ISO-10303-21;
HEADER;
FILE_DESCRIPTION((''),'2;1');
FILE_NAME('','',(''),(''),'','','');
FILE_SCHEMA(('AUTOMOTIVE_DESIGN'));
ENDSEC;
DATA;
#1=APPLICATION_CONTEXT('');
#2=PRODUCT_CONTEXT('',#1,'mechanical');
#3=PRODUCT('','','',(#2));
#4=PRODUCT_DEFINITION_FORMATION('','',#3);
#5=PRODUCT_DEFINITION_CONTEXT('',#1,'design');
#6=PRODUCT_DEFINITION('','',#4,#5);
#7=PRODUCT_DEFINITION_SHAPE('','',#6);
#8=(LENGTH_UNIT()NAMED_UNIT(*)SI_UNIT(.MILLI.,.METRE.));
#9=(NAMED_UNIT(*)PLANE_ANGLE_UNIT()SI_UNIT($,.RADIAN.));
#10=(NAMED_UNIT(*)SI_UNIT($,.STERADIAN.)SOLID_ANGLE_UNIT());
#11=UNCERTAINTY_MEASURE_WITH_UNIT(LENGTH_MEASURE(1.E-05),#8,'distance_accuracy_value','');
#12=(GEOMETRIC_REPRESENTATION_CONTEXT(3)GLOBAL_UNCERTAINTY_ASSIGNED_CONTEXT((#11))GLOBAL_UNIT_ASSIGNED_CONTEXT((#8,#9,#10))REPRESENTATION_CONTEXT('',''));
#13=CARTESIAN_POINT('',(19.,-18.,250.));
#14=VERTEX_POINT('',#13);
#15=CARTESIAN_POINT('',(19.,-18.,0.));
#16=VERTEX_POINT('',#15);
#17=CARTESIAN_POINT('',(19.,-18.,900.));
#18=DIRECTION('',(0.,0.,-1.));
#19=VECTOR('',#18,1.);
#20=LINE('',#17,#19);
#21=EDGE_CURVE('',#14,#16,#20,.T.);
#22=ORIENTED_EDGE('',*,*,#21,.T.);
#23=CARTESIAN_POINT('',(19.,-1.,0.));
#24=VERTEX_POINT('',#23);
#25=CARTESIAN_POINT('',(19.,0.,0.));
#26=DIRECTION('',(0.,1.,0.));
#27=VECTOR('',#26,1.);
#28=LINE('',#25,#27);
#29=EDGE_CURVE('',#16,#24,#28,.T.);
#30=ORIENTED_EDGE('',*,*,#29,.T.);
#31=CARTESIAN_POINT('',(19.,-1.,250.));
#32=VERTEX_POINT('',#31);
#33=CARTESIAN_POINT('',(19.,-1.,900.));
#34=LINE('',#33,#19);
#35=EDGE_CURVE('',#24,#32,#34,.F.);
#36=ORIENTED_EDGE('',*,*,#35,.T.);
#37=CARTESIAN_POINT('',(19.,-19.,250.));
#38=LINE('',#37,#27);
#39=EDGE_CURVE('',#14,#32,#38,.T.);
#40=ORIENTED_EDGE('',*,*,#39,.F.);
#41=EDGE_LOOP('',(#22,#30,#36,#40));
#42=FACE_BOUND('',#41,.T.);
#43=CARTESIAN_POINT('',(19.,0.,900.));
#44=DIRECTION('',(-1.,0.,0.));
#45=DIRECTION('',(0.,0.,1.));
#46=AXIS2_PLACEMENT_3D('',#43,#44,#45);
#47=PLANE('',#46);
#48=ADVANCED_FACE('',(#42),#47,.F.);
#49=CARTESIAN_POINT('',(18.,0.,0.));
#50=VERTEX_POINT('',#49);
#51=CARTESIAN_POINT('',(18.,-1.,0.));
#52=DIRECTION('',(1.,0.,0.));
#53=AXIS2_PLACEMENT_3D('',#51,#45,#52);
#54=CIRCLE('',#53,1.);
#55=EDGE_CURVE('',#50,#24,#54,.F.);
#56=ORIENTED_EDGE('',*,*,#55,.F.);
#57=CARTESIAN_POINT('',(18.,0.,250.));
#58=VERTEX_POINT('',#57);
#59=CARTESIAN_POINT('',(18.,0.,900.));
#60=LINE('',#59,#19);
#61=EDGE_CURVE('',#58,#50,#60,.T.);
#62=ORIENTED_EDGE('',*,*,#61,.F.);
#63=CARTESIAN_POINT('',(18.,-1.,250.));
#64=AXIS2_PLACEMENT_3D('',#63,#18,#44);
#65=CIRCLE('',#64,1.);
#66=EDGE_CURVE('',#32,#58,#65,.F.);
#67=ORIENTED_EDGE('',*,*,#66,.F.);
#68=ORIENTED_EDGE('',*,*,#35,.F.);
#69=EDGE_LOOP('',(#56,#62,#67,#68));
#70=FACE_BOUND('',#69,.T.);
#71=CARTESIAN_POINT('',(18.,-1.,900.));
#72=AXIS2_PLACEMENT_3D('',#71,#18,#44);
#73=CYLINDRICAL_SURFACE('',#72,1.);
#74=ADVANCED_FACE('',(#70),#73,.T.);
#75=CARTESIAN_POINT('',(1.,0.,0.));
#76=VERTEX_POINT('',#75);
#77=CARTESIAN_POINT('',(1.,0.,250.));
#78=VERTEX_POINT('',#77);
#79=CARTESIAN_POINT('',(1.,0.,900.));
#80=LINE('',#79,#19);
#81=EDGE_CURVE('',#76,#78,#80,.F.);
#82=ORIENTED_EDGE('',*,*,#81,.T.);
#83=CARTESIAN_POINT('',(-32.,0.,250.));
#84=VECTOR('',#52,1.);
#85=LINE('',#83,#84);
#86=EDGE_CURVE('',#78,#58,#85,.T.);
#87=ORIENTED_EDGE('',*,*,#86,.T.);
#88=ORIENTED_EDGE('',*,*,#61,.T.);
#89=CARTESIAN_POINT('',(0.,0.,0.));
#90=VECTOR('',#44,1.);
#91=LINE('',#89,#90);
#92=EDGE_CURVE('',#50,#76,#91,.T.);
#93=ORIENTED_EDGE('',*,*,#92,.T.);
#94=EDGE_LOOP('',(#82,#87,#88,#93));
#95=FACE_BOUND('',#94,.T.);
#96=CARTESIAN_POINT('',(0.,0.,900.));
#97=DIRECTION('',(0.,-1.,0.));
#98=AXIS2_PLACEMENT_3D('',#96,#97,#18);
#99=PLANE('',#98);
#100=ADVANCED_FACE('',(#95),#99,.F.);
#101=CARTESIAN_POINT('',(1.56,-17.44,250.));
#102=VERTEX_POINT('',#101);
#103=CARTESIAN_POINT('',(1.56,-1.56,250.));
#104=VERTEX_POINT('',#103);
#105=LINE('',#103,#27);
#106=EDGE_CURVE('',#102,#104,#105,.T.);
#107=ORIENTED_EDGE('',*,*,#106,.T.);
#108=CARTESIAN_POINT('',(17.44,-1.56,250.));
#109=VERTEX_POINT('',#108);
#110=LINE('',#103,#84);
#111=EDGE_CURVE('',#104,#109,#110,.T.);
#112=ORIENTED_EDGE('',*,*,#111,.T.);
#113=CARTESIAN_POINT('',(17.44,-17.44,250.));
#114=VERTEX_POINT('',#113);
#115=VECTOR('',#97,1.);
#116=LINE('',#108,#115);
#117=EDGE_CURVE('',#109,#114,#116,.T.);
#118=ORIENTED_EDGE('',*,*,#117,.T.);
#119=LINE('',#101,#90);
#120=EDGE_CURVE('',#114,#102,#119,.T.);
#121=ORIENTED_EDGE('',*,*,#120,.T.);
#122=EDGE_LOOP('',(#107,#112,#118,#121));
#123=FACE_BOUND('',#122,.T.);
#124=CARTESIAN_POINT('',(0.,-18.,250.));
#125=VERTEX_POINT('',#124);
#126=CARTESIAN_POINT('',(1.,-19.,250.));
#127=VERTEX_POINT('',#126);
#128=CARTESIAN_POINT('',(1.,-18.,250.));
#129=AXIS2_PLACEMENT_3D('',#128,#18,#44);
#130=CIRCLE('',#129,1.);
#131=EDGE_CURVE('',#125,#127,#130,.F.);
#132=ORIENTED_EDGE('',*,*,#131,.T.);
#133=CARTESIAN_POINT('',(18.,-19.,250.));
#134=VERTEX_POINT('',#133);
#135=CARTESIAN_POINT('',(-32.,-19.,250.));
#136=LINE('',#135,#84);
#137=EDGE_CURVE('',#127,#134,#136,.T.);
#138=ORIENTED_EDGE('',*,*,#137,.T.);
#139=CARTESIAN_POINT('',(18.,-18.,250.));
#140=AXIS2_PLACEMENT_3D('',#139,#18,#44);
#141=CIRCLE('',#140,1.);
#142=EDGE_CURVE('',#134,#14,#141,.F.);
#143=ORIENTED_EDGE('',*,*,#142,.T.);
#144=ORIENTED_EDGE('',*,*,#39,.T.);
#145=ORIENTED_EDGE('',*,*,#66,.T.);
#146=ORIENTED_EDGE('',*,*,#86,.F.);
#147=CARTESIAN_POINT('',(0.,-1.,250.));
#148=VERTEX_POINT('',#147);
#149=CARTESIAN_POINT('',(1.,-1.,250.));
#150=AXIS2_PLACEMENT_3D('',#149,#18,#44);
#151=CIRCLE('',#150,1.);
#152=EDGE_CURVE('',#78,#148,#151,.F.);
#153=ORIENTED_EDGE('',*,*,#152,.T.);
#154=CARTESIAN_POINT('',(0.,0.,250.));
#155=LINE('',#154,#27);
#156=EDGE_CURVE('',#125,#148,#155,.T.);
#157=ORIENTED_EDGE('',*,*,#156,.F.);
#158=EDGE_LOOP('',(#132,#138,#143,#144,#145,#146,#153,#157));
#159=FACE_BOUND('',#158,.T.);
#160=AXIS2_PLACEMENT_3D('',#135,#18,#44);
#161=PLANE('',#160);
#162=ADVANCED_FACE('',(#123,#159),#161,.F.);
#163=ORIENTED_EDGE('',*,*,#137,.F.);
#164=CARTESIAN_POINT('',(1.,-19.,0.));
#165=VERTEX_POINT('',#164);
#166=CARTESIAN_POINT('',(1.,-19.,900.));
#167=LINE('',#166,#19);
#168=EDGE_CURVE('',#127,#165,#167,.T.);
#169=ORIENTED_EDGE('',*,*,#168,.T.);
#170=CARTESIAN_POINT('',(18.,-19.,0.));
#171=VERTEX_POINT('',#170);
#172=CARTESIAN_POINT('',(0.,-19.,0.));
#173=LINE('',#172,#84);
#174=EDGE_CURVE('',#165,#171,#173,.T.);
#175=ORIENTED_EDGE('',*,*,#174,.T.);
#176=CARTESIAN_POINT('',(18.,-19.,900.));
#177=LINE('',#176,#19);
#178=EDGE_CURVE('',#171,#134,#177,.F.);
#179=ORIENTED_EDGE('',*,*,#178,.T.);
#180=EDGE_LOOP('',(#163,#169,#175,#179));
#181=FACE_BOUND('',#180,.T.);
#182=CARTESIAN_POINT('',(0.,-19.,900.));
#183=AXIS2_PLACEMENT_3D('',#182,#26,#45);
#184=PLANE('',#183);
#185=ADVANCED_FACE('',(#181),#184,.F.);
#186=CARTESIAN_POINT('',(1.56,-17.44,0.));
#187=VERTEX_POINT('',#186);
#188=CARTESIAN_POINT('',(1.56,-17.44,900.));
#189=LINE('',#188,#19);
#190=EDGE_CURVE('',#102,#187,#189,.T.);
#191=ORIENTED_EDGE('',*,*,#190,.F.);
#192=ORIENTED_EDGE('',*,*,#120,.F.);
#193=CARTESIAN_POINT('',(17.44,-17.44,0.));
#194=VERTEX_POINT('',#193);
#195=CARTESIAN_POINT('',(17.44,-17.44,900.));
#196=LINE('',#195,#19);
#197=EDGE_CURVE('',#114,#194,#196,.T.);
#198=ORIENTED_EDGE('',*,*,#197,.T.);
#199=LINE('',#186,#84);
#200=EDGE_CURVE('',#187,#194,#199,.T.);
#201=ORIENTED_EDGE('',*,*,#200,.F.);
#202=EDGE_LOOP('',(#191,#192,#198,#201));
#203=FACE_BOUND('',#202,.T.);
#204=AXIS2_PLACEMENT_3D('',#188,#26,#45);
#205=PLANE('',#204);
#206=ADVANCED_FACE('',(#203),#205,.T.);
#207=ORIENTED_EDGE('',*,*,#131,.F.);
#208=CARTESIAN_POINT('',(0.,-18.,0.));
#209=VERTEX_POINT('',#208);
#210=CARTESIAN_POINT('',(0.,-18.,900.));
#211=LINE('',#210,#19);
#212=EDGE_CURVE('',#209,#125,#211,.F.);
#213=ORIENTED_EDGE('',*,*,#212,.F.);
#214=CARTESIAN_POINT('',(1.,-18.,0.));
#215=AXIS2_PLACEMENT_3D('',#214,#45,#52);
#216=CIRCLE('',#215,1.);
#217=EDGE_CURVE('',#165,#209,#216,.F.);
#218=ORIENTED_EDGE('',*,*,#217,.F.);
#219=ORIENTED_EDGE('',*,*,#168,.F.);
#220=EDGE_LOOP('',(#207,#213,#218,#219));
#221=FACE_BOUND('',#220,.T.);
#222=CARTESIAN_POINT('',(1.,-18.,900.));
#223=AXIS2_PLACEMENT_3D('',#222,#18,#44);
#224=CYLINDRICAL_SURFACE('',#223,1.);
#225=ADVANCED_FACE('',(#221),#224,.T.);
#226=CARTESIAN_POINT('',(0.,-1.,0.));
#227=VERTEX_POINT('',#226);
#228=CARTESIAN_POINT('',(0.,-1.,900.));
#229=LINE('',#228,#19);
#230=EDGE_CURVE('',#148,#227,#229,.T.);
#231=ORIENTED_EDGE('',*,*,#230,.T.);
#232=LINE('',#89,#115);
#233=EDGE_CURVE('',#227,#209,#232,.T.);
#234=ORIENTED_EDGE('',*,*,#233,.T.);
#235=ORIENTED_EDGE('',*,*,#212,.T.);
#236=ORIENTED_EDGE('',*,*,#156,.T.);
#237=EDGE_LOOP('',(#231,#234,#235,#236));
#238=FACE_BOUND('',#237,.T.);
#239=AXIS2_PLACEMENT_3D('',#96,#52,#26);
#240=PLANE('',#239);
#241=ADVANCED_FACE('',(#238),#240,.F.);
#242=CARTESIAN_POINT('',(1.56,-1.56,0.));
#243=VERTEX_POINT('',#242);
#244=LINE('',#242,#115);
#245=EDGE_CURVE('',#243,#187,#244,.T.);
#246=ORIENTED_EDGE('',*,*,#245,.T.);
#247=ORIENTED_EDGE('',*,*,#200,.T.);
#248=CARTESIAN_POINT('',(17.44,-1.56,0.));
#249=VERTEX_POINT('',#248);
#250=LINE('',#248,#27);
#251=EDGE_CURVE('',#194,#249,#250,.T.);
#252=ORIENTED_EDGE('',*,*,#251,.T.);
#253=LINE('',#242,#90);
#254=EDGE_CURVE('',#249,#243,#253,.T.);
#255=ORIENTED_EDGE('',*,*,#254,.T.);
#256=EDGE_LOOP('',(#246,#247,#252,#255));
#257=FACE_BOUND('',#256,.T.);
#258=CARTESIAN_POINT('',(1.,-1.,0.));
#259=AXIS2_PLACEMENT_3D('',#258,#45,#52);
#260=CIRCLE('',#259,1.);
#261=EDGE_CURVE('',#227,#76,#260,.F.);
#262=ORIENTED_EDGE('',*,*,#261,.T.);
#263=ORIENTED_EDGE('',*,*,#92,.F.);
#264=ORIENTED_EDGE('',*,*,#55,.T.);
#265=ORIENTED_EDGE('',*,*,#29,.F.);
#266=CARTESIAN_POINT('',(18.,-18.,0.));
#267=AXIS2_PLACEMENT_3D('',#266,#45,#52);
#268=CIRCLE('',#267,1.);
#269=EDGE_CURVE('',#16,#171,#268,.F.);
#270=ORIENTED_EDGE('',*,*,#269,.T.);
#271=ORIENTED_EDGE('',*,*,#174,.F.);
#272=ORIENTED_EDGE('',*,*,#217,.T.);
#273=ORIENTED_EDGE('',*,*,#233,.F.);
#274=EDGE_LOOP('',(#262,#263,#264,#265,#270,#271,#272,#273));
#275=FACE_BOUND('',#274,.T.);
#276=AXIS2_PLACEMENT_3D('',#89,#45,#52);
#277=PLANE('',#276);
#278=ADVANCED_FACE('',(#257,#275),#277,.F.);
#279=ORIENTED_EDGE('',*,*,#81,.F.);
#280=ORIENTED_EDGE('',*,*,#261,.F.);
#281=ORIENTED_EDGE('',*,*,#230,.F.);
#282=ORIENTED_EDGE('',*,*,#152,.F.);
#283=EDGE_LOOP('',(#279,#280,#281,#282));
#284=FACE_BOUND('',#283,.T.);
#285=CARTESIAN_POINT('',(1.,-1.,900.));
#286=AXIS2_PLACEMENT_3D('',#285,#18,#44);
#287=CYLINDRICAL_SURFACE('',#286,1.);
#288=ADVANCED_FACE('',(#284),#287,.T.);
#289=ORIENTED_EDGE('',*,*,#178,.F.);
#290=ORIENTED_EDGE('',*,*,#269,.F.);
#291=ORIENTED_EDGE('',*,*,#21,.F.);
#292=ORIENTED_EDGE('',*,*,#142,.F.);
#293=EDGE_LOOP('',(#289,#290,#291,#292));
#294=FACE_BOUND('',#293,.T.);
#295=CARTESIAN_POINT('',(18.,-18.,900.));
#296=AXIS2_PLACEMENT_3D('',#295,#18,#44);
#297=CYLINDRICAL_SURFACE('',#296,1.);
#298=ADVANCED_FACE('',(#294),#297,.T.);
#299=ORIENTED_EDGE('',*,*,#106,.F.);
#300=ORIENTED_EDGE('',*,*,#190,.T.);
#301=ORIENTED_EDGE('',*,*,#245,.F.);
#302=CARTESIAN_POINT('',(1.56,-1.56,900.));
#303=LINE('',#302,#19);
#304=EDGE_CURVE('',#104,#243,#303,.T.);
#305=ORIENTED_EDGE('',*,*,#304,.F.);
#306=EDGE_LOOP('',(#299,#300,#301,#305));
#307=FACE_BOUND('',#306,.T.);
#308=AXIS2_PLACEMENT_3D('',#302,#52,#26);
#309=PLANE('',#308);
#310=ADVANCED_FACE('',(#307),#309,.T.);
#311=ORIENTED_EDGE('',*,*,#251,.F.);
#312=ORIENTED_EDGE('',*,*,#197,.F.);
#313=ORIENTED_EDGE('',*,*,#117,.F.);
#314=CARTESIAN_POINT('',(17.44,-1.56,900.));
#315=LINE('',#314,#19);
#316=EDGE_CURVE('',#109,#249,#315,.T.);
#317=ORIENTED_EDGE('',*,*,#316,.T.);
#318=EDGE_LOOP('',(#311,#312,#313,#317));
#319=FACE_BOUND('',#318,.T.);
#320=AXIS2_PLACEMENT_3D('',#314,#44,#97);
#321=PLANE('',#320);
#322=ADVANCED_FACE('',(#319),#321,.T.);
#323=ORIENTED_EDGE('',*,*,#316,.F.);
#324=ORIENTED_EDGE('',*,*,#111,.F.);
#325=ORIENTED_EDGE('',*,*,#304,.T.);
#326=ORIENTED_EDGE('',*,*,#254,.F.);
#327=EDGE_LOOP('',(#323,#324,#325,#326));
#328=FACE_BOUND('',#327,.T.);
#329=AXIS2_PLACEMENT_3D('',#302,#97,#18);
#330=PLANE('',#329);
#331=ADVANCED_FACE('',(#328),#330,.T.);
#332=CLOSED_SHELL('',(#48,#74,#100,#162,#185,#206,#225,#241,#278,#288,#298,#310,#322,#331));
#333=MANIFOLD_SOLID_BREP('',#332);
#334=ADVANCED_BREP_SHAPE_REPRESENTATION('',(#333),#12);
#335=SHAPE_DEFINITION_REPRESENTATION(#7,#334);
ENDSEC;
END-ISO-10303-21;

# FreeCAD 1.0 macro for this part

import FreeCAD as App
import Part
import Sketcher
from FreeCAD import Vector


def edges_at(feature, points):
    """Names of the edges that pass closest to the given points."""
    edges = feature.Shape.Edges
    near = lambda p: min(range(len(edges)), key=lambda i: edges[i].distToShape(Part.Vertex(*p))[0])
    return sorted({f"Edge{near(p) + 1}" for p in points})


def add_polygon(sketch, points):
    """Adds a closed chain of lines whose ends are joined by coincident constraints."""
    first, n = sketch.GeometryCount, len(points)
    for a, b in zip(points, points[1:] + points[:1]):
        sketch.addGeometry(Part.LineSegment(App.Vector(*a, 0), App.Vector(*b, 0)), False)
    for i in range(n):
        sketch.addConstraint(Sketcher.Constraint("Coincident", first + i, 2, first + (i + 1) % n, 1))

doc = App.newDocument("Part")
body = doc.addObject("PartDesign::Body", "Body")

sketch1 = doc.addObject("Sketcher::SketchObject", "Sketch")
body.addObject(sketch1)
sketch1.AttachmentSupport = (doc.XY_Plane, [""])
sketch1.MapMode = "FlatFace"
add_polygon(sketch1, [(0, 0), (0, -19), (19, -19), (19, 0)])
add_polygon(sketch1, [(17, -17), (2, -17), (2, -2), (17, -2)])
sketch1.addConstraint([
    Sketcher.Constraint("Vertical", 0),
    Sketcher.Constraint("Horizontal", 1),
    Sketcher.Constraint("Vertical", 2),
    Sketcher.Constraint("Horizontal", 3),
    Sketcher.Constraint("Horizontal", 4),
    Sketcher.Constraint("Vertical", 5),
    Sketcher.Constraint("Horizontal", 6),
    Sketcher.Constraint("Vertical", 7),
    Sketcher.Constraint("Coincident", 3, 2, -1, 1),
    Sketcher.Constraint("Equal", 3, 0),
    Sketcher.Constraint("Equal", 6, 5),
    Sketcher.Constraint("DistanceX", 1, 1, 1, 2, 19.0),
    Sketcher.Constraint("DistanceX", 4, 2, 4, 1, 15.88),
    Sketcher.Constraint("DistanceX", -1, 1, 4, 2, 1.56),
    Sketcher.Constraint("DistanceY", 4, 2, -1, 1, 17.44),
])
pad1 = doc.addObject("PartDesign::Pad", "Pad")
body.addObject(pad1)
pad1.Profile = sketch1
pad1.Length = 900
doc.recompute()

fillet = doc.addObject("PartDesign::Fillet", "Fillet")
body.addObject(fillet)
fillet.Base = (pad1, edges_at(pad1, [
    (0, 0, 450),
    (19, 0, 450),
    (19, -19, 450),
    (0, -19, 450),
]))
fillet.Radius = 1

sketch2 = doc.addObject("Sketcher::SketchObject", "Sketch001")
body.addObject(sketch2)
sketch2.AttachmentSupport = (doc.YZ_Plane, [""])
sketch2.MapMode = "FlatFace"
sketch2.AttachmentOffset = App.Placement(Vector(0, 0, 19), App.Rotation())
add_polygon(sketch2, [(0, 900), (-19, 900), (-19, 250), (0, 250)])
sketch2.addConstraint([
    Sketcher.Constraint("Horizontal", 0),
    Sketcher.Constraint("Vertical", 1),
    Sketcher.Constraint("Horizontal", 2),
    Sketcher.Constraint("Vertical", 3),
    Sketcher.Constraint("PointOnObject", 2, 2, -2),
    Sketcher.Constraint("DistanceX", 0, 2, 0, 1, 19.0),
    Sketcher.Constraint("DistanceY", 1, 2, 1, 1, 650.0),
    Sketcher.Constraint("DistanceY", -1, 1, 0, 2, 900.0),
])
pocket1 = doc.addObject("PartDesign::Pocket", "Pocket")
body.addObject(pocket1)
pocket1.Profile = sketch2
pocket1.Length = 51

doc.recompute()
